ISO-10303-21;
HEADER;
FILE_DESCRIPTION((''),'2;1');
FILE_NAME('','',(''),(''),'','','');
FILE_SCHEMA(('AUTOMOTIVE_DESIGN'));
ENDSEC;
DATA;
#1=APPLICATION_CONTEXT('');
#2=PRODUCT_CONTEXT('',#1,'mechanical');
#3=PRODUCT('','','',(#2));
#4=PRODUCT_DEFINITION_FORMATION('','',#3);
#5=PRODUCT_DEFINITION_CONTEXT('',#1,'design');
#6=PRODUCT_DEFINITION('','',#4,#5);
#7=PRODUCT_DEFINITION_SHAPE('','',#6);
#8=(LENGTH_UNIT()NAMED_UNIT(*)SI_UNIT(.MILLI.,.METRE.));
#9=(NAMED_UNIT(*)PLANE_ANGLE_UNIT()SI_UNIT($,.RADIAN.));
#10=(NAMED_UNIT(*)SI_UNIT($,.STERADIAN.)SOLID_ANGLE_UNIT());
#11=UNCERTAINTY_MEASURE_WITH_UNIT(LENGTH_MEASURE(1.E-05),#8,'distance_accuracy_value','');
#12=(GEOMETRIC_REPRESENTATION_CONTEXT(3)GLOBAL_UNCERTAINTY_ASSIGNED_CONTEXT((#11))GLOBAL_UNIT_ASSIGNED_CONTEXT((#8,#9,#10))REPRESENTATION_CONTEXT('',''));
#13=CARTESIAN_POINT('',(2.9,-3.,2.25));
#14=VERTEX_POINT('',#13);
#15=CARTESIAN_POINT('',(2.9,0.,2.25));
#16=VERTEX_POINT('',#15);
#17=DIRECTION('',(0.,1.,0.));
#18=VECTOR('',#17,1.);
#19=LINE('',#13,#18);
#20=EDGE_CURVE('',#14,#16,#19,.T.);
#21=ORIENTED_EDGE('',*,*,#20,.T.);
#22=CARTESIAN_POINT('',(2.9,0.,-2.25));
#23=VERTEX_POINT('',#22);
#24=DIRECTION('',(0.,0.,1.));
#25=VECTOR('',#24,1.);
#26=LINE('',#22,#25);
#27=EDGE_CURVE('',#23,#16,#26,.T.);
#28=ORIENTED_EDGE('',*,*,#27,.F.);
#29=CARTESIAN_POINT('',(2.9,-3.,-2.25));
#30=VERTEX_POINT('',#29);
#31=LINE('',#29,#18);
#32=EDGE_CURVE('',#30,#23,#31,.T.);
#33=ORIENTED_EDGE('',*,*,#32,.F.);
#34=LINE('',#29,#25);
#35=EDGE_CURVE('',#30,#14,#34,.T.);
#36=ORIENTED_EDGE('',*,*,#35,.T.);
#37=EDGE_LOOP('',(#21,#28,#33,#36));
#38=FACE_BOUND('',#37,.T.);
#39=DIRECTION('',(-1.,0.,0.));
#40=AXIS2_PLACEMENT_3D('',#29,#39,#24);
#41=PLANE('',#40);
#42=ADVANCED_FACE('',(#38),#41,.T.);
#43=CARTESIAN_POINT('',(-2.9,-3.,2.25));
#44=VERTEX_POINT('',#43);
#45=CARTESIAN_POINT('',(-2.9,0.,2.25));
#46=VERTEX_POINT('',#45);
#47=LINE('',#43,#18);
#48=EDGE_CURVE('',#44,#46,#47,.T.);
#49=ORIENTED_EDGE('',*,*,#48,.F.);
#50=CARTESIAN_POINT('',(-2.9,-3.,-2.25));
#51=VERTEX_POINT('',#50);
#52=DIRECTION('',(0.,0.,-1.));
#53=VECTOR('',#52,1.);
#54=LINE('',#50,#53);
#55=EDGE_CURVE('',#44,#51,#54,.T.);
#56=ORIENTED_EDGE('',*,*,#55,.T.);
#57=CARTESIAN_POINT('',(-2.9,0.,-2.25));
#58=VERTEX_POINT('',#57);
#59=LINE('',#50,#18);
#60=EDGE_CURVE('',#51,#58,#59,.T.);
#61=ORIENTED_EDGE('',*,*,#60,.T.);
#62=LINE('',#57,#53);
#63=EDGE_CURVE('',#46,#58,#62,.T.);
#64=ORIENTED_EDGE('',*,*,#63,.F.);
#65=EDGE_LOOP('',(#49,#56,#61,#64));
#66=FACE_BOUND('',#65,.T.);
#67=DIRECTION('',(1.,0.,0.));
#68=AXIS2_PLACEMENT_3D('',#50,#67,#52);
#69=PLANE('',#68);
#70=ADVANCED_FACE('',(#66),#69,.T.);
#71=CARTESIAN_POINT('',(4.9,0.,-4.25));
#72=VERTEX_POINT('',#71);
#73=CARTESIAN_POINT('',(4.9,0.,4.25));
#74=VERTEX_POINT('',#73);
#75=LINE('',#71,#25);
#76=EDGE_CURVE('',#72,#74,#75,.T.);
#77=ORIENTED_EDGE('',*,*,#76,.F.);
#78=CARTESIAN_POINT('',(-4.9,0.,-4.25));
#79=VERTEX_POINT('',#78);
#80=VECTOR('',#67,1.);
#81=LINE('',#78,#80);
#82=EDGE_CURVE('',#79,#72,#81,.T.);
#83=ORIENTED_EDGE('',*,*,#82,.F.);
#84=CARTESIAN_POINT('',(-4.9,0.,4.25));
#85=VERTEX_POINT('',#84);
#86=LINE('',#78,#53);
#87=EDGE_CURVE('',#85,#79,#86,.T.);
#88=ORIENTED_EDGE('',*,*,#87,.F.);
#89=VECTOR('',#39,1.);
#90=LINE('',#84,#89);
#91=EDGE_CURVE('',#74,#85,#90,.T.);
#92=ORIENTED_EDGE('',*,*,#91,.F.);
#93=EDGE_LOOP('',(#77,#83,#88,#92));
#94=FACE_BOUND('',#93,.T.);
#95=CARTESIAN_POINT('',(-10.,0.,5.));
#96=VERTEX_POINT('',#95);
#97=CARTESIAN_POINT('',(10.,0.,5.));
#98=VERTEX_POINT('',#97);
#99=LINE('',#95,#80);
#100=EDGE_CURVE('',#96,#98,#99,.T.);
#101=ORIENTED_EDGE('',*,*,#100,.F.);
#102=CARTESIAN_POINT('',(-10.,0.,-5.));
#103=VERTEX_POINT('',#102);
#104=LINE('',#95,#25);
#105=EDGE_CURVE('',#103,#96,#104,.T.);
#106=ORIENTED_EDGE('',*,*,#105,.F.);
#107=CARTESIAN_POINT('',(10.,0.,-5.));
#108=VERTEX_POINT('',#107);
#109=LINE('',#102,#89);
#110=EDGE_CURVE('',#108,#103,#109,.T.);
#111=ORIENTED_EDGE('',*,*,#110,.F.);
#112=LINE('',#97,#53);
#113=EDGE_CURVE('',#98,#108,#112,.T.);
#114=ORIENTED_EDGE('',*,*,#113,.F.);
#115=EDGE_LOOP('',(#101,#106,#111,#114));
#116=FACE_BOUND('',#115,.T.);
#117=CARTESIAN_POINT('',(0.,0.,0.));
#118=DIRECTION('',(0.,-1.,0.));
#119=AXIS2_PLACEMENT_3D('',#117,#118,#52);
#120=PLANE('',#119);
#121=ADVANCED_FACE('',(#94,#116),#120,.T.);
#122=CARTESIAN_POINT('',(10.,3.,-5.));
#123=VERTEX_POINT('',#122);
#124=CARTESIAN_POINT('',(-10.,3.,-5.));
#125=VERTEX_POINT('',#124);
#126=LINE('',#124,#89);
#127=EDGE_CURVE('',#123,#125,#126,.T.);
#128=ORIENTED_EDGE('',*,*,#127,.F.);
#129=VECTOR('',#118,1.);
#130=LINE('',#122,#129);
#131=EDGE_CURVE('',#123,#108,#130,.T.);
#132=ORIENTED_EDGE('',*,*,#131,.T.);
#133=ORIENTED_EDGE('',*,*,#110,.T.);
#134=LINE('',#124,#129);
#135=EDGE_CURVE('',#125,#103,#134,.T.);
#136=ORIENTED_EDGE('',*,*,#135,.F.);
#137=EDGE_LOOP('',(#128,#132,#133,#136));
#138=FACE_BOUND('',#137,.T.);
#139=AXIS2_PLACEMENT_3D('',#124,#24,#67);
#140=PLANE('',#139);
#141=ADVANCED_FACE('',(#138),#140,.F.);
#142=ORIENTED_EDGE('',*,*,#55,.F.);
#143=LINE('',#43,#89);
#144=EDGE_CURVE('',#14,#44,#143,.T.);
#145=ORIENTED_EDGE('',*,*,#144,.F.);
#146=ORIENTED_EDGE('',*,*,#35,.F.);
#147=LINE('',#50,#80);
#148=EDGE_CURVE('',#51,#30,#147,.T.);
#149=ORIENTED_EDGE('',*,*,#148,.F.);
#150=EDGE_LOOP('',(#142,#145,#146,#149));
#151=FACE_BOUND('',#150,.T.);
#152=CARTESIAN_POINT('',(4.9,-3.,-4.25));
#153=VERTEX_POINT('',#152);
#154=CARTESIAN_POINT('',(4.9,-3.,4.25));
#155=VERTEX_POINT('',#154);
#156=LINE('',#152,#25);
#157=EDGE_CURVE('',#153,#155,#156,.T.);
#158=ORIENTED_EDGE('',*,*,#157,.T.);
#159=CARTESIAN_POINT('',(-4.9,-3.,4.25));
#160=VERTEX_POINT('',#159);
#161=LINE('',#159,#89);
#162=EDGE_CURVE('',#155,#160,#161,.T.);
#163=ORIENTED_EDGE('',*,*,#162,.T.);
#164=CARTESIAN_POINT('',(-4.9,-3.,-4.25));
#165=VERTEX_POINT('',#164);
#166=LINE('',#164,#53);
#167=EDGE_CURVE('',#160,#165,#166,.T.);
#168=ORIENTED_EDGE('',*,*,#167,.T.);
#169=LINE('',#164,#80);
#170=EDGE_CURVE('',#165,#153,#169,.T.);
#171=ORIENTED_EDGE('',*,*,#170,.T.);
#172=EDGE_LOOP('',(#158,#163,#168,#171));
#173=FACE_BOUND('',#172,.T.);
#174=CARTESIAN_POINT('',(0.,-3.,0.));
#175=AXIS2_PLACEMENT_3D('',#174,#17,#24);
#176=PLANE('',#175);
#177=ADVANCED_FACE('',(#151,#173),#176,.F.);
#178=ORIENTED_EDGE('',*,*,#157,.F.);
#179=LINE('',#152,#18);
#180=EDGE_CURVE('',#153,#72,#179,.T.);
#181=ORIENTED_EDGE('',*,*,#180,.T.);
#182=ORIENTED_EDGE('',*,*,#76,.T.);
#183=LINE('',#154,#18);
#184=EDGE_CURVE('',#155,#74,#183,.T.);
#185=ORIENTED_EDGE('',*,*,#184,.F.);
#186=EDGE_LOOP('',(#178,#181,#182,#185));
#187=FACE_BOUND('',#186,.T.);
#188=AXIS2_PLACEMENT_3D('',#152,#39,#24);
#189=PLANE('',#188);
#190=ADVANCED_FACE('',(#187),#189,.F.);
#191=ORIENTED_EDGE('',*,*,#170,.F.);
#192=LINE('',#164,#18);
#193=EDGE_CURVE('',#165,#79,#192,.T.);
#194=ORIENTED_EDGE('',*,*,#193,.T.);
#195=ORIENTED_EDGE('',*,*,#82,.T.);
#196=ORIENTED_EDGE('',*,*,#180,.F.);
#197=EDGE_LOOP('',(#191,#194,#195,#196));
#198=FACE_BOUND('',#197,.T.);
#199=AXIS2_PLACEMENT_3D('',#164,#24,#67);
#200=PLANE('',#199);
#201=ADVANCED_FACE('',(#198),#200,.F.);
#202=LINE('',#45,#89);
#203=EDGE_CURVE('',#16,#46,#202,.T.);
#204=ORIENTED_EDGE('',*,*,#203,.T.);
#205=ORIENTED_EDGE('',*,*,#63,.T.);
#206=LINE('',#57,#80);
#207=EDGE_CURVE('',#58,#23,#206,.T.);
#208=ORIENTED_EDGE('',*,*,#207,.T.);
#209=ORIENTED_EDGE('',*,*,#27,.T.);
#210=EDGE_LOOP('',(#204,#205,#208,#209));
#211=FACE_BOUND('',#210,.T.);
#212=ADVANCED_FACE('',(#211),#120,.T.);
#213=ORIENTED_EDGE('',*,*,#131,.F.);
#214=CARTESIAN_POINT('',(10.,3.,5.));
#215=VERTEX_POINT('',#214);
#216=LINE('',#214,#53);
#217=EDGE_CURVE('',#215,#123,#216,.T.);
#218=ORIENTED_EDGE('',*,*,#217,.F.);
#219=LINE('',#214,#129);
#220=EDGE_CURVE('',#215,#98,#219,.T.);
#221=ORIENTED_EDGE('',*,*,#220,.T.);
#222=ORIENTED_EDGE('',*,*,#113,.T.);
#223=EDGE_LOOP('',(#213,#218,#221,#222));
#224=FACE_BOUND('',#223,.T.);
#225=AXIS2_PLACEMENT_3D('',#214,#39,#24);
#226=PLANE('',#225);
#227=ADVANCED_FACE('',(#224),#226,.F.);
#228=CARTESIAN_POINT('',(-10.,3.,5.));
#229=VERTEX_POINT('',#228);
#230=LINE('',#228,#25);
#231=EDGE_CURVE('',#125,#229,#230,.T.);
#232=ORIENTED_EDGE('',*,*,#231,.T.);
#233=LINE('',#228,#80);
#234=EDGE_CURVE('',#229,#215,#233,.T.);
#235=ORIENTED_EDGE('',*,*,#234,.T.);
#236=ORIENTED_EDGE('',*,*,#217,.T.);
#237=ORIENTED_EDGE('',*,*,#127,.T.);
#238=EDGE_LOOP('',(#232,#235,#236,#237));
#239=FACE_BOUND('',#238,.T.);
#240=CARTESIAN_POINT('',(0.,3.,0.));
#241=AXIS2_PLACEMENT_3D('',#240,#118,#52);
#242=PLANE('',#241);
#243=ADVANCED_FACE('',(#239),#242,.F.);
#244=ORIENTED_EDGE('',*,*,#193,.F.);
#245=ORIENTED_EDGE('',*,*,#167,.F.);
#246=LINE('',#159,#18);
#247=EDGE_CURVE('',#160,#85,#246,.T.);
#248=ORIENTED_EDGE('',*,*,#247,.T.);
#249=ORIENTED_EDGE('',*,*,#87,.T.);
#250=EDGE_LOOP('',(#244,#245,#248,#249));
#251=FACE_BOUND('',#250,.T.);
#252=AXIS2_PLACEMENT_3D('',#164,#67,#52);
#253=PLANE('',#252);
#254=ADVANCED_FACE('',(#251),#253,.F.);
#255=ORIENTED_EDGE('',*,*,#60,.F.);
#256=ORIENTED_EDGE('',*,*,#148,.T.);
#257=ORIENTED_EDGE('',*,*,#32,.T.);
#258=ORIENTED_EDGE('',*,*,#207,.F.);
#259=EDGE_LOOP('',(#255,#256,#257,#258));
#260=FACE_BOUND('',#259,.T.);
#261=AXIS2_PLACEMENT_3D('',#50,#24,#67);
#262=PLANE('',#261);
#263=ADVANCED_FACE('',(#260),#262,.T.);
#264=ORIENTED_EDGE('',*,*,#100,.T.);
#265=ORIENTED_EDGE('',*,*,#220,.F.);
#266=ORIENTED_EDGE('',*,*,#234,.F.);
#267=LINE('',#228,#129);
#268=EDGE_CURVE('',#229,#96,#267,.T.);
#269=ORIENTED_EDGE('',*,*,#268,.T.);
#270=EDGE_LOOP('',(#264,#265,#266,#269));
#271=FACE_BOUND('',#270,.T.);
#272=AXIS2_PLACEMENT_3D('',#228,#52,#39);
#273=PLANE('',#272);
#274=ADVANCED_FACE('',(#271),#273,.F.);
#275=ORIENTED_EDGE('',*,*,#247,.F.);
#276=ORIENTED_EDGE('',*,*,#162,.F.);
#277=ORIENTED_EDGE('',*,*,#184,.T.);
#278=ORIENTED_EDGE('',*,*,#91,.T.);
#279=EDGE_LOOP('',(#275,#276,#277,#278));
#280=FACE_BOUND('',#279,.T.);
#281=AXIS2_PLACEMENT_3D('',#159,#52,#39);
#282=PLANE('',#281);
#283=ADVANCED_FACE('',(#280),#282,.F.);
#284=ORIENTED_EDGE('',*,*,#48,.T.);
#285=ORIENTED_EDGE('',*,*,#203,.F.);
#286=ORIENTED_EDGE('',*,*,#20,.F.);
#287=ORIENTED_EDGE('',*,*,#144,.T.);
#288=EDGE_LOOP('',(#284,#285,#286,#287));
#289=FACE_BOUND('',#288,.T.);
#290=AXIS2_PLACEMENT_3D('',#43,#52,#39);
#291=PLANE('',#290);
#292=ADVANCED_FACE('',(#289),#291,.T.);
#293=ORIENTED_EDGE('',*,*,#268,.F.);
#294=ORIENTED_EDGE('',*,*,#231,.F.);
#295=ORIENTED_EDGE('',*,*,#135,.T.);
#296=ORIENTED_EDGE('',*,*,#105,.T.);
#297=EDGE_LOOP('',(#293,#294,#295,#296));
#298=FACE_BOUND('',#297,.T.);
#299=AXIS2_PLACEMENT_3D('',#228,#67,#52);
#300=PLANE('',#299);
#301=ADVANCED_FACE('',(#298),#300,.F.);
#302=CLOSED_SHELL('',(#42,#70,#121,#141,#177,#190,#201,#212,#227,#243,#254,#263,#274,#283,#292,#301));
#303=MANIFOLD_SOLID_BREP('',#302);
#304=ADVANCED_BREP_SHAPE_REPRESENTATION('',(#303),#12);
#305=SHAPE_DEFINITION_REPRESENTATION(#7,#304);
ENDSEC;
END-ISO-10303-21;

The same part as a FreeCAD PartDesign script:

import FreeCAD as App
import Part
import Sketcher

V = App.Vector

doc = App.newDocument("Part")
body = doc.addObject("PartDesign::Body", "Body")

sketch1 = body.newObject("Sketcher::SketchObject", "Sketch")
sketch1.AttachmentSupport = (doc.getObject("XZ_Plane"), [""])
sketch1.MapMode = "FlatFace"
sketch1.addGeometry(Part.LineSegment(V(-10, -5, 0), V(-10, 5, 0)), False)
sketch1.addGeometry(Part.LineSegment(V(-10, 5, 0), V(10, 5, 0)), False)
sketch1.addGeometry(Part.LineSegment(V(10, 5, 0), V(10, -5, 0)), False)
sketch1.addGeometry(Part.LineSegment(V(10, -5, 0), V(-10, -5, 0)), False)
sketch1.addConstraint(Sketcher.Constraint("Coincident", 0, 2, 1, 1))
sketch1.addConstraint(Sketcher.Constraint("Coincident", 1, 2, 2, 1))
sketch1.addConstraint(Sketcher.Constraint("Coincident", 2, 2, 3, 1))
sketch1.addConstraint(Sketcher.Constraint("Coincident", 3, 2, 0, 1))
sketch1.addConstraint(Sketcher.Constraint("Vertical", 0))
sketch1.addConstraint(Sketcher.Constraint("Horizontal", 1))
sketch1.addConstraint(Sketcher.Constraint("Vertical", 2))
sketch1.addConstraint(Sketcher.Constraint("Horizontal", 3))
sketch1.addConstraint(Sketcher.Constraint("Symmetric", 0, 2, 2, 2, -1, 1))
sketch1.addConstraint(Sketcher.Constraint("DistanceX", 1, 1, 1, 2, 20.0))
sketch1.addConstraint(Sketcher.Constraint("DistanceY", 0, 1, 0, 2, 10.0))
pad1 = body.newObject("PartDesign::Pad", "Pad")
pad1.Profile = sketch1
pad1.Length = 3
pad1.Reversed = True

sketch2 = body.newObject("Sketcher::SketchObject", "Sketch001")
sketch2.AttachmentSupport = (doc.getObject("XZ_Plane"), [""])
sketch2.MapMode = "FlatFace"
sketch2.addGeometry(Part.LineSegment(V(-4.9, 4.2, 0), V(-4.9, -4.2, 0)), False)
sketch2.addGeometry(Part.LineSegment(V(-4.9, -4.2, 0), V(4.9, -4.2, 0)), False)
sketch2.addGeometry(Part.LineSegment(V(4.9, -4.2, 0), V(4.9, 4.2, 0)), False)
sketch2.addGeometry(Part.LineSegment(V(4.9, 4.2, 0), V(-4.9, 4.2, 0)), False)
sketch2.addGeometry(Part.LineSegment(V(2.9, -2.2, 0), V(-2.9, -2.2, 0)), False)
sketch2.addGeometry(Part.LineSegment(V(-2.9, -2.2, 0), V(-2.9, 2.2, 0)), False)
sketch2.addGeometry(Part.LineSegment(V(-2.9, 2.2, 0), V(2.9, 2.2, 0)), False)
sketch2.addGeometry(Part.LineSegment(V(2.9, 2.2, 0), V(2.9, -2.2, 0)), False)
sketch2.addConstraint(Sketcher.Constraint("Coincident", 0, 2, 1, 1))
sketch2.addConstraint(Sketcher.Constraint("Coincident", 1, 2, 2, 1))
sketch2.addConstraint(Sketcher.Constraint("Coincident", 2, 2, 3, 1))
sketch2.addConstraint(Sketcher.Constraint("Coincident", 3, 2, 0, 1))
sketch2.addConstraint(Sketcher.Constraint("Coincident", 4, 2, 5, 1))
sketch2.addConstraint(Sketcher.Constraint("Coincident", 5, 2, 6, 1))
sketch2.addConstraint(Sketcher.Constraint("Coincident", 6, 2, 7, 1))
sketch2.addConstraint(Sketcher.Constraint("Coincident", 7, 2, 4, 1))
sketch2.addConstraint(Sketcher.Constraint("Vertical", 0))
sketch2.addConstraint(Sketcher.Constraint("Horizontal", 1))
sketch2.addConstraint(Sketcher.Constraint("Vertical", 2))
sketch2.addConstraint(Sketcher.Constraint("Horizontal", 3))
sketch2.addConstraint(Sketcher.Constraint("Horizontal", 4))
sketch2.addConstraint(Sketcher.Constraint("Vertical", 5))
sketch2.addConstraint(Sketcher.Constraint("Horizontal", 6))
sketch2.addConstraint(Sketcher.Constraint("Vertical", 7))
sketch2.addConstraint(Sketcher.Constraint("Symmetric", 0, 2, 2, 2, -1, 1))
sketch2.addConstraint(Sketcher.Constraint("Symmetric", 4, 2, 6, 2, -1, 1))
sketch2.addConstraint(Sketcher.Constraint("DistanceX", 1, 1, 1, 2, 9.8))
sketch2.addConstraint(Sketcher.Constraint("DistanceX", 4, 2, 4, 1, 5.8))
sketch2.addConstraint(Sketcher.Constraint("DistanceY", 0, 2, 0, 1, 8.5))
sketch2.addConstraint(Sketcher.Constraint("DistanceY", 5, 1, 5, 2, 4.5))
pad2 = body.newObject("PartDesign::Pad", "Pad001")
pad2.Profile = sketch2
pad2.Length = 3

doc.recompute()
